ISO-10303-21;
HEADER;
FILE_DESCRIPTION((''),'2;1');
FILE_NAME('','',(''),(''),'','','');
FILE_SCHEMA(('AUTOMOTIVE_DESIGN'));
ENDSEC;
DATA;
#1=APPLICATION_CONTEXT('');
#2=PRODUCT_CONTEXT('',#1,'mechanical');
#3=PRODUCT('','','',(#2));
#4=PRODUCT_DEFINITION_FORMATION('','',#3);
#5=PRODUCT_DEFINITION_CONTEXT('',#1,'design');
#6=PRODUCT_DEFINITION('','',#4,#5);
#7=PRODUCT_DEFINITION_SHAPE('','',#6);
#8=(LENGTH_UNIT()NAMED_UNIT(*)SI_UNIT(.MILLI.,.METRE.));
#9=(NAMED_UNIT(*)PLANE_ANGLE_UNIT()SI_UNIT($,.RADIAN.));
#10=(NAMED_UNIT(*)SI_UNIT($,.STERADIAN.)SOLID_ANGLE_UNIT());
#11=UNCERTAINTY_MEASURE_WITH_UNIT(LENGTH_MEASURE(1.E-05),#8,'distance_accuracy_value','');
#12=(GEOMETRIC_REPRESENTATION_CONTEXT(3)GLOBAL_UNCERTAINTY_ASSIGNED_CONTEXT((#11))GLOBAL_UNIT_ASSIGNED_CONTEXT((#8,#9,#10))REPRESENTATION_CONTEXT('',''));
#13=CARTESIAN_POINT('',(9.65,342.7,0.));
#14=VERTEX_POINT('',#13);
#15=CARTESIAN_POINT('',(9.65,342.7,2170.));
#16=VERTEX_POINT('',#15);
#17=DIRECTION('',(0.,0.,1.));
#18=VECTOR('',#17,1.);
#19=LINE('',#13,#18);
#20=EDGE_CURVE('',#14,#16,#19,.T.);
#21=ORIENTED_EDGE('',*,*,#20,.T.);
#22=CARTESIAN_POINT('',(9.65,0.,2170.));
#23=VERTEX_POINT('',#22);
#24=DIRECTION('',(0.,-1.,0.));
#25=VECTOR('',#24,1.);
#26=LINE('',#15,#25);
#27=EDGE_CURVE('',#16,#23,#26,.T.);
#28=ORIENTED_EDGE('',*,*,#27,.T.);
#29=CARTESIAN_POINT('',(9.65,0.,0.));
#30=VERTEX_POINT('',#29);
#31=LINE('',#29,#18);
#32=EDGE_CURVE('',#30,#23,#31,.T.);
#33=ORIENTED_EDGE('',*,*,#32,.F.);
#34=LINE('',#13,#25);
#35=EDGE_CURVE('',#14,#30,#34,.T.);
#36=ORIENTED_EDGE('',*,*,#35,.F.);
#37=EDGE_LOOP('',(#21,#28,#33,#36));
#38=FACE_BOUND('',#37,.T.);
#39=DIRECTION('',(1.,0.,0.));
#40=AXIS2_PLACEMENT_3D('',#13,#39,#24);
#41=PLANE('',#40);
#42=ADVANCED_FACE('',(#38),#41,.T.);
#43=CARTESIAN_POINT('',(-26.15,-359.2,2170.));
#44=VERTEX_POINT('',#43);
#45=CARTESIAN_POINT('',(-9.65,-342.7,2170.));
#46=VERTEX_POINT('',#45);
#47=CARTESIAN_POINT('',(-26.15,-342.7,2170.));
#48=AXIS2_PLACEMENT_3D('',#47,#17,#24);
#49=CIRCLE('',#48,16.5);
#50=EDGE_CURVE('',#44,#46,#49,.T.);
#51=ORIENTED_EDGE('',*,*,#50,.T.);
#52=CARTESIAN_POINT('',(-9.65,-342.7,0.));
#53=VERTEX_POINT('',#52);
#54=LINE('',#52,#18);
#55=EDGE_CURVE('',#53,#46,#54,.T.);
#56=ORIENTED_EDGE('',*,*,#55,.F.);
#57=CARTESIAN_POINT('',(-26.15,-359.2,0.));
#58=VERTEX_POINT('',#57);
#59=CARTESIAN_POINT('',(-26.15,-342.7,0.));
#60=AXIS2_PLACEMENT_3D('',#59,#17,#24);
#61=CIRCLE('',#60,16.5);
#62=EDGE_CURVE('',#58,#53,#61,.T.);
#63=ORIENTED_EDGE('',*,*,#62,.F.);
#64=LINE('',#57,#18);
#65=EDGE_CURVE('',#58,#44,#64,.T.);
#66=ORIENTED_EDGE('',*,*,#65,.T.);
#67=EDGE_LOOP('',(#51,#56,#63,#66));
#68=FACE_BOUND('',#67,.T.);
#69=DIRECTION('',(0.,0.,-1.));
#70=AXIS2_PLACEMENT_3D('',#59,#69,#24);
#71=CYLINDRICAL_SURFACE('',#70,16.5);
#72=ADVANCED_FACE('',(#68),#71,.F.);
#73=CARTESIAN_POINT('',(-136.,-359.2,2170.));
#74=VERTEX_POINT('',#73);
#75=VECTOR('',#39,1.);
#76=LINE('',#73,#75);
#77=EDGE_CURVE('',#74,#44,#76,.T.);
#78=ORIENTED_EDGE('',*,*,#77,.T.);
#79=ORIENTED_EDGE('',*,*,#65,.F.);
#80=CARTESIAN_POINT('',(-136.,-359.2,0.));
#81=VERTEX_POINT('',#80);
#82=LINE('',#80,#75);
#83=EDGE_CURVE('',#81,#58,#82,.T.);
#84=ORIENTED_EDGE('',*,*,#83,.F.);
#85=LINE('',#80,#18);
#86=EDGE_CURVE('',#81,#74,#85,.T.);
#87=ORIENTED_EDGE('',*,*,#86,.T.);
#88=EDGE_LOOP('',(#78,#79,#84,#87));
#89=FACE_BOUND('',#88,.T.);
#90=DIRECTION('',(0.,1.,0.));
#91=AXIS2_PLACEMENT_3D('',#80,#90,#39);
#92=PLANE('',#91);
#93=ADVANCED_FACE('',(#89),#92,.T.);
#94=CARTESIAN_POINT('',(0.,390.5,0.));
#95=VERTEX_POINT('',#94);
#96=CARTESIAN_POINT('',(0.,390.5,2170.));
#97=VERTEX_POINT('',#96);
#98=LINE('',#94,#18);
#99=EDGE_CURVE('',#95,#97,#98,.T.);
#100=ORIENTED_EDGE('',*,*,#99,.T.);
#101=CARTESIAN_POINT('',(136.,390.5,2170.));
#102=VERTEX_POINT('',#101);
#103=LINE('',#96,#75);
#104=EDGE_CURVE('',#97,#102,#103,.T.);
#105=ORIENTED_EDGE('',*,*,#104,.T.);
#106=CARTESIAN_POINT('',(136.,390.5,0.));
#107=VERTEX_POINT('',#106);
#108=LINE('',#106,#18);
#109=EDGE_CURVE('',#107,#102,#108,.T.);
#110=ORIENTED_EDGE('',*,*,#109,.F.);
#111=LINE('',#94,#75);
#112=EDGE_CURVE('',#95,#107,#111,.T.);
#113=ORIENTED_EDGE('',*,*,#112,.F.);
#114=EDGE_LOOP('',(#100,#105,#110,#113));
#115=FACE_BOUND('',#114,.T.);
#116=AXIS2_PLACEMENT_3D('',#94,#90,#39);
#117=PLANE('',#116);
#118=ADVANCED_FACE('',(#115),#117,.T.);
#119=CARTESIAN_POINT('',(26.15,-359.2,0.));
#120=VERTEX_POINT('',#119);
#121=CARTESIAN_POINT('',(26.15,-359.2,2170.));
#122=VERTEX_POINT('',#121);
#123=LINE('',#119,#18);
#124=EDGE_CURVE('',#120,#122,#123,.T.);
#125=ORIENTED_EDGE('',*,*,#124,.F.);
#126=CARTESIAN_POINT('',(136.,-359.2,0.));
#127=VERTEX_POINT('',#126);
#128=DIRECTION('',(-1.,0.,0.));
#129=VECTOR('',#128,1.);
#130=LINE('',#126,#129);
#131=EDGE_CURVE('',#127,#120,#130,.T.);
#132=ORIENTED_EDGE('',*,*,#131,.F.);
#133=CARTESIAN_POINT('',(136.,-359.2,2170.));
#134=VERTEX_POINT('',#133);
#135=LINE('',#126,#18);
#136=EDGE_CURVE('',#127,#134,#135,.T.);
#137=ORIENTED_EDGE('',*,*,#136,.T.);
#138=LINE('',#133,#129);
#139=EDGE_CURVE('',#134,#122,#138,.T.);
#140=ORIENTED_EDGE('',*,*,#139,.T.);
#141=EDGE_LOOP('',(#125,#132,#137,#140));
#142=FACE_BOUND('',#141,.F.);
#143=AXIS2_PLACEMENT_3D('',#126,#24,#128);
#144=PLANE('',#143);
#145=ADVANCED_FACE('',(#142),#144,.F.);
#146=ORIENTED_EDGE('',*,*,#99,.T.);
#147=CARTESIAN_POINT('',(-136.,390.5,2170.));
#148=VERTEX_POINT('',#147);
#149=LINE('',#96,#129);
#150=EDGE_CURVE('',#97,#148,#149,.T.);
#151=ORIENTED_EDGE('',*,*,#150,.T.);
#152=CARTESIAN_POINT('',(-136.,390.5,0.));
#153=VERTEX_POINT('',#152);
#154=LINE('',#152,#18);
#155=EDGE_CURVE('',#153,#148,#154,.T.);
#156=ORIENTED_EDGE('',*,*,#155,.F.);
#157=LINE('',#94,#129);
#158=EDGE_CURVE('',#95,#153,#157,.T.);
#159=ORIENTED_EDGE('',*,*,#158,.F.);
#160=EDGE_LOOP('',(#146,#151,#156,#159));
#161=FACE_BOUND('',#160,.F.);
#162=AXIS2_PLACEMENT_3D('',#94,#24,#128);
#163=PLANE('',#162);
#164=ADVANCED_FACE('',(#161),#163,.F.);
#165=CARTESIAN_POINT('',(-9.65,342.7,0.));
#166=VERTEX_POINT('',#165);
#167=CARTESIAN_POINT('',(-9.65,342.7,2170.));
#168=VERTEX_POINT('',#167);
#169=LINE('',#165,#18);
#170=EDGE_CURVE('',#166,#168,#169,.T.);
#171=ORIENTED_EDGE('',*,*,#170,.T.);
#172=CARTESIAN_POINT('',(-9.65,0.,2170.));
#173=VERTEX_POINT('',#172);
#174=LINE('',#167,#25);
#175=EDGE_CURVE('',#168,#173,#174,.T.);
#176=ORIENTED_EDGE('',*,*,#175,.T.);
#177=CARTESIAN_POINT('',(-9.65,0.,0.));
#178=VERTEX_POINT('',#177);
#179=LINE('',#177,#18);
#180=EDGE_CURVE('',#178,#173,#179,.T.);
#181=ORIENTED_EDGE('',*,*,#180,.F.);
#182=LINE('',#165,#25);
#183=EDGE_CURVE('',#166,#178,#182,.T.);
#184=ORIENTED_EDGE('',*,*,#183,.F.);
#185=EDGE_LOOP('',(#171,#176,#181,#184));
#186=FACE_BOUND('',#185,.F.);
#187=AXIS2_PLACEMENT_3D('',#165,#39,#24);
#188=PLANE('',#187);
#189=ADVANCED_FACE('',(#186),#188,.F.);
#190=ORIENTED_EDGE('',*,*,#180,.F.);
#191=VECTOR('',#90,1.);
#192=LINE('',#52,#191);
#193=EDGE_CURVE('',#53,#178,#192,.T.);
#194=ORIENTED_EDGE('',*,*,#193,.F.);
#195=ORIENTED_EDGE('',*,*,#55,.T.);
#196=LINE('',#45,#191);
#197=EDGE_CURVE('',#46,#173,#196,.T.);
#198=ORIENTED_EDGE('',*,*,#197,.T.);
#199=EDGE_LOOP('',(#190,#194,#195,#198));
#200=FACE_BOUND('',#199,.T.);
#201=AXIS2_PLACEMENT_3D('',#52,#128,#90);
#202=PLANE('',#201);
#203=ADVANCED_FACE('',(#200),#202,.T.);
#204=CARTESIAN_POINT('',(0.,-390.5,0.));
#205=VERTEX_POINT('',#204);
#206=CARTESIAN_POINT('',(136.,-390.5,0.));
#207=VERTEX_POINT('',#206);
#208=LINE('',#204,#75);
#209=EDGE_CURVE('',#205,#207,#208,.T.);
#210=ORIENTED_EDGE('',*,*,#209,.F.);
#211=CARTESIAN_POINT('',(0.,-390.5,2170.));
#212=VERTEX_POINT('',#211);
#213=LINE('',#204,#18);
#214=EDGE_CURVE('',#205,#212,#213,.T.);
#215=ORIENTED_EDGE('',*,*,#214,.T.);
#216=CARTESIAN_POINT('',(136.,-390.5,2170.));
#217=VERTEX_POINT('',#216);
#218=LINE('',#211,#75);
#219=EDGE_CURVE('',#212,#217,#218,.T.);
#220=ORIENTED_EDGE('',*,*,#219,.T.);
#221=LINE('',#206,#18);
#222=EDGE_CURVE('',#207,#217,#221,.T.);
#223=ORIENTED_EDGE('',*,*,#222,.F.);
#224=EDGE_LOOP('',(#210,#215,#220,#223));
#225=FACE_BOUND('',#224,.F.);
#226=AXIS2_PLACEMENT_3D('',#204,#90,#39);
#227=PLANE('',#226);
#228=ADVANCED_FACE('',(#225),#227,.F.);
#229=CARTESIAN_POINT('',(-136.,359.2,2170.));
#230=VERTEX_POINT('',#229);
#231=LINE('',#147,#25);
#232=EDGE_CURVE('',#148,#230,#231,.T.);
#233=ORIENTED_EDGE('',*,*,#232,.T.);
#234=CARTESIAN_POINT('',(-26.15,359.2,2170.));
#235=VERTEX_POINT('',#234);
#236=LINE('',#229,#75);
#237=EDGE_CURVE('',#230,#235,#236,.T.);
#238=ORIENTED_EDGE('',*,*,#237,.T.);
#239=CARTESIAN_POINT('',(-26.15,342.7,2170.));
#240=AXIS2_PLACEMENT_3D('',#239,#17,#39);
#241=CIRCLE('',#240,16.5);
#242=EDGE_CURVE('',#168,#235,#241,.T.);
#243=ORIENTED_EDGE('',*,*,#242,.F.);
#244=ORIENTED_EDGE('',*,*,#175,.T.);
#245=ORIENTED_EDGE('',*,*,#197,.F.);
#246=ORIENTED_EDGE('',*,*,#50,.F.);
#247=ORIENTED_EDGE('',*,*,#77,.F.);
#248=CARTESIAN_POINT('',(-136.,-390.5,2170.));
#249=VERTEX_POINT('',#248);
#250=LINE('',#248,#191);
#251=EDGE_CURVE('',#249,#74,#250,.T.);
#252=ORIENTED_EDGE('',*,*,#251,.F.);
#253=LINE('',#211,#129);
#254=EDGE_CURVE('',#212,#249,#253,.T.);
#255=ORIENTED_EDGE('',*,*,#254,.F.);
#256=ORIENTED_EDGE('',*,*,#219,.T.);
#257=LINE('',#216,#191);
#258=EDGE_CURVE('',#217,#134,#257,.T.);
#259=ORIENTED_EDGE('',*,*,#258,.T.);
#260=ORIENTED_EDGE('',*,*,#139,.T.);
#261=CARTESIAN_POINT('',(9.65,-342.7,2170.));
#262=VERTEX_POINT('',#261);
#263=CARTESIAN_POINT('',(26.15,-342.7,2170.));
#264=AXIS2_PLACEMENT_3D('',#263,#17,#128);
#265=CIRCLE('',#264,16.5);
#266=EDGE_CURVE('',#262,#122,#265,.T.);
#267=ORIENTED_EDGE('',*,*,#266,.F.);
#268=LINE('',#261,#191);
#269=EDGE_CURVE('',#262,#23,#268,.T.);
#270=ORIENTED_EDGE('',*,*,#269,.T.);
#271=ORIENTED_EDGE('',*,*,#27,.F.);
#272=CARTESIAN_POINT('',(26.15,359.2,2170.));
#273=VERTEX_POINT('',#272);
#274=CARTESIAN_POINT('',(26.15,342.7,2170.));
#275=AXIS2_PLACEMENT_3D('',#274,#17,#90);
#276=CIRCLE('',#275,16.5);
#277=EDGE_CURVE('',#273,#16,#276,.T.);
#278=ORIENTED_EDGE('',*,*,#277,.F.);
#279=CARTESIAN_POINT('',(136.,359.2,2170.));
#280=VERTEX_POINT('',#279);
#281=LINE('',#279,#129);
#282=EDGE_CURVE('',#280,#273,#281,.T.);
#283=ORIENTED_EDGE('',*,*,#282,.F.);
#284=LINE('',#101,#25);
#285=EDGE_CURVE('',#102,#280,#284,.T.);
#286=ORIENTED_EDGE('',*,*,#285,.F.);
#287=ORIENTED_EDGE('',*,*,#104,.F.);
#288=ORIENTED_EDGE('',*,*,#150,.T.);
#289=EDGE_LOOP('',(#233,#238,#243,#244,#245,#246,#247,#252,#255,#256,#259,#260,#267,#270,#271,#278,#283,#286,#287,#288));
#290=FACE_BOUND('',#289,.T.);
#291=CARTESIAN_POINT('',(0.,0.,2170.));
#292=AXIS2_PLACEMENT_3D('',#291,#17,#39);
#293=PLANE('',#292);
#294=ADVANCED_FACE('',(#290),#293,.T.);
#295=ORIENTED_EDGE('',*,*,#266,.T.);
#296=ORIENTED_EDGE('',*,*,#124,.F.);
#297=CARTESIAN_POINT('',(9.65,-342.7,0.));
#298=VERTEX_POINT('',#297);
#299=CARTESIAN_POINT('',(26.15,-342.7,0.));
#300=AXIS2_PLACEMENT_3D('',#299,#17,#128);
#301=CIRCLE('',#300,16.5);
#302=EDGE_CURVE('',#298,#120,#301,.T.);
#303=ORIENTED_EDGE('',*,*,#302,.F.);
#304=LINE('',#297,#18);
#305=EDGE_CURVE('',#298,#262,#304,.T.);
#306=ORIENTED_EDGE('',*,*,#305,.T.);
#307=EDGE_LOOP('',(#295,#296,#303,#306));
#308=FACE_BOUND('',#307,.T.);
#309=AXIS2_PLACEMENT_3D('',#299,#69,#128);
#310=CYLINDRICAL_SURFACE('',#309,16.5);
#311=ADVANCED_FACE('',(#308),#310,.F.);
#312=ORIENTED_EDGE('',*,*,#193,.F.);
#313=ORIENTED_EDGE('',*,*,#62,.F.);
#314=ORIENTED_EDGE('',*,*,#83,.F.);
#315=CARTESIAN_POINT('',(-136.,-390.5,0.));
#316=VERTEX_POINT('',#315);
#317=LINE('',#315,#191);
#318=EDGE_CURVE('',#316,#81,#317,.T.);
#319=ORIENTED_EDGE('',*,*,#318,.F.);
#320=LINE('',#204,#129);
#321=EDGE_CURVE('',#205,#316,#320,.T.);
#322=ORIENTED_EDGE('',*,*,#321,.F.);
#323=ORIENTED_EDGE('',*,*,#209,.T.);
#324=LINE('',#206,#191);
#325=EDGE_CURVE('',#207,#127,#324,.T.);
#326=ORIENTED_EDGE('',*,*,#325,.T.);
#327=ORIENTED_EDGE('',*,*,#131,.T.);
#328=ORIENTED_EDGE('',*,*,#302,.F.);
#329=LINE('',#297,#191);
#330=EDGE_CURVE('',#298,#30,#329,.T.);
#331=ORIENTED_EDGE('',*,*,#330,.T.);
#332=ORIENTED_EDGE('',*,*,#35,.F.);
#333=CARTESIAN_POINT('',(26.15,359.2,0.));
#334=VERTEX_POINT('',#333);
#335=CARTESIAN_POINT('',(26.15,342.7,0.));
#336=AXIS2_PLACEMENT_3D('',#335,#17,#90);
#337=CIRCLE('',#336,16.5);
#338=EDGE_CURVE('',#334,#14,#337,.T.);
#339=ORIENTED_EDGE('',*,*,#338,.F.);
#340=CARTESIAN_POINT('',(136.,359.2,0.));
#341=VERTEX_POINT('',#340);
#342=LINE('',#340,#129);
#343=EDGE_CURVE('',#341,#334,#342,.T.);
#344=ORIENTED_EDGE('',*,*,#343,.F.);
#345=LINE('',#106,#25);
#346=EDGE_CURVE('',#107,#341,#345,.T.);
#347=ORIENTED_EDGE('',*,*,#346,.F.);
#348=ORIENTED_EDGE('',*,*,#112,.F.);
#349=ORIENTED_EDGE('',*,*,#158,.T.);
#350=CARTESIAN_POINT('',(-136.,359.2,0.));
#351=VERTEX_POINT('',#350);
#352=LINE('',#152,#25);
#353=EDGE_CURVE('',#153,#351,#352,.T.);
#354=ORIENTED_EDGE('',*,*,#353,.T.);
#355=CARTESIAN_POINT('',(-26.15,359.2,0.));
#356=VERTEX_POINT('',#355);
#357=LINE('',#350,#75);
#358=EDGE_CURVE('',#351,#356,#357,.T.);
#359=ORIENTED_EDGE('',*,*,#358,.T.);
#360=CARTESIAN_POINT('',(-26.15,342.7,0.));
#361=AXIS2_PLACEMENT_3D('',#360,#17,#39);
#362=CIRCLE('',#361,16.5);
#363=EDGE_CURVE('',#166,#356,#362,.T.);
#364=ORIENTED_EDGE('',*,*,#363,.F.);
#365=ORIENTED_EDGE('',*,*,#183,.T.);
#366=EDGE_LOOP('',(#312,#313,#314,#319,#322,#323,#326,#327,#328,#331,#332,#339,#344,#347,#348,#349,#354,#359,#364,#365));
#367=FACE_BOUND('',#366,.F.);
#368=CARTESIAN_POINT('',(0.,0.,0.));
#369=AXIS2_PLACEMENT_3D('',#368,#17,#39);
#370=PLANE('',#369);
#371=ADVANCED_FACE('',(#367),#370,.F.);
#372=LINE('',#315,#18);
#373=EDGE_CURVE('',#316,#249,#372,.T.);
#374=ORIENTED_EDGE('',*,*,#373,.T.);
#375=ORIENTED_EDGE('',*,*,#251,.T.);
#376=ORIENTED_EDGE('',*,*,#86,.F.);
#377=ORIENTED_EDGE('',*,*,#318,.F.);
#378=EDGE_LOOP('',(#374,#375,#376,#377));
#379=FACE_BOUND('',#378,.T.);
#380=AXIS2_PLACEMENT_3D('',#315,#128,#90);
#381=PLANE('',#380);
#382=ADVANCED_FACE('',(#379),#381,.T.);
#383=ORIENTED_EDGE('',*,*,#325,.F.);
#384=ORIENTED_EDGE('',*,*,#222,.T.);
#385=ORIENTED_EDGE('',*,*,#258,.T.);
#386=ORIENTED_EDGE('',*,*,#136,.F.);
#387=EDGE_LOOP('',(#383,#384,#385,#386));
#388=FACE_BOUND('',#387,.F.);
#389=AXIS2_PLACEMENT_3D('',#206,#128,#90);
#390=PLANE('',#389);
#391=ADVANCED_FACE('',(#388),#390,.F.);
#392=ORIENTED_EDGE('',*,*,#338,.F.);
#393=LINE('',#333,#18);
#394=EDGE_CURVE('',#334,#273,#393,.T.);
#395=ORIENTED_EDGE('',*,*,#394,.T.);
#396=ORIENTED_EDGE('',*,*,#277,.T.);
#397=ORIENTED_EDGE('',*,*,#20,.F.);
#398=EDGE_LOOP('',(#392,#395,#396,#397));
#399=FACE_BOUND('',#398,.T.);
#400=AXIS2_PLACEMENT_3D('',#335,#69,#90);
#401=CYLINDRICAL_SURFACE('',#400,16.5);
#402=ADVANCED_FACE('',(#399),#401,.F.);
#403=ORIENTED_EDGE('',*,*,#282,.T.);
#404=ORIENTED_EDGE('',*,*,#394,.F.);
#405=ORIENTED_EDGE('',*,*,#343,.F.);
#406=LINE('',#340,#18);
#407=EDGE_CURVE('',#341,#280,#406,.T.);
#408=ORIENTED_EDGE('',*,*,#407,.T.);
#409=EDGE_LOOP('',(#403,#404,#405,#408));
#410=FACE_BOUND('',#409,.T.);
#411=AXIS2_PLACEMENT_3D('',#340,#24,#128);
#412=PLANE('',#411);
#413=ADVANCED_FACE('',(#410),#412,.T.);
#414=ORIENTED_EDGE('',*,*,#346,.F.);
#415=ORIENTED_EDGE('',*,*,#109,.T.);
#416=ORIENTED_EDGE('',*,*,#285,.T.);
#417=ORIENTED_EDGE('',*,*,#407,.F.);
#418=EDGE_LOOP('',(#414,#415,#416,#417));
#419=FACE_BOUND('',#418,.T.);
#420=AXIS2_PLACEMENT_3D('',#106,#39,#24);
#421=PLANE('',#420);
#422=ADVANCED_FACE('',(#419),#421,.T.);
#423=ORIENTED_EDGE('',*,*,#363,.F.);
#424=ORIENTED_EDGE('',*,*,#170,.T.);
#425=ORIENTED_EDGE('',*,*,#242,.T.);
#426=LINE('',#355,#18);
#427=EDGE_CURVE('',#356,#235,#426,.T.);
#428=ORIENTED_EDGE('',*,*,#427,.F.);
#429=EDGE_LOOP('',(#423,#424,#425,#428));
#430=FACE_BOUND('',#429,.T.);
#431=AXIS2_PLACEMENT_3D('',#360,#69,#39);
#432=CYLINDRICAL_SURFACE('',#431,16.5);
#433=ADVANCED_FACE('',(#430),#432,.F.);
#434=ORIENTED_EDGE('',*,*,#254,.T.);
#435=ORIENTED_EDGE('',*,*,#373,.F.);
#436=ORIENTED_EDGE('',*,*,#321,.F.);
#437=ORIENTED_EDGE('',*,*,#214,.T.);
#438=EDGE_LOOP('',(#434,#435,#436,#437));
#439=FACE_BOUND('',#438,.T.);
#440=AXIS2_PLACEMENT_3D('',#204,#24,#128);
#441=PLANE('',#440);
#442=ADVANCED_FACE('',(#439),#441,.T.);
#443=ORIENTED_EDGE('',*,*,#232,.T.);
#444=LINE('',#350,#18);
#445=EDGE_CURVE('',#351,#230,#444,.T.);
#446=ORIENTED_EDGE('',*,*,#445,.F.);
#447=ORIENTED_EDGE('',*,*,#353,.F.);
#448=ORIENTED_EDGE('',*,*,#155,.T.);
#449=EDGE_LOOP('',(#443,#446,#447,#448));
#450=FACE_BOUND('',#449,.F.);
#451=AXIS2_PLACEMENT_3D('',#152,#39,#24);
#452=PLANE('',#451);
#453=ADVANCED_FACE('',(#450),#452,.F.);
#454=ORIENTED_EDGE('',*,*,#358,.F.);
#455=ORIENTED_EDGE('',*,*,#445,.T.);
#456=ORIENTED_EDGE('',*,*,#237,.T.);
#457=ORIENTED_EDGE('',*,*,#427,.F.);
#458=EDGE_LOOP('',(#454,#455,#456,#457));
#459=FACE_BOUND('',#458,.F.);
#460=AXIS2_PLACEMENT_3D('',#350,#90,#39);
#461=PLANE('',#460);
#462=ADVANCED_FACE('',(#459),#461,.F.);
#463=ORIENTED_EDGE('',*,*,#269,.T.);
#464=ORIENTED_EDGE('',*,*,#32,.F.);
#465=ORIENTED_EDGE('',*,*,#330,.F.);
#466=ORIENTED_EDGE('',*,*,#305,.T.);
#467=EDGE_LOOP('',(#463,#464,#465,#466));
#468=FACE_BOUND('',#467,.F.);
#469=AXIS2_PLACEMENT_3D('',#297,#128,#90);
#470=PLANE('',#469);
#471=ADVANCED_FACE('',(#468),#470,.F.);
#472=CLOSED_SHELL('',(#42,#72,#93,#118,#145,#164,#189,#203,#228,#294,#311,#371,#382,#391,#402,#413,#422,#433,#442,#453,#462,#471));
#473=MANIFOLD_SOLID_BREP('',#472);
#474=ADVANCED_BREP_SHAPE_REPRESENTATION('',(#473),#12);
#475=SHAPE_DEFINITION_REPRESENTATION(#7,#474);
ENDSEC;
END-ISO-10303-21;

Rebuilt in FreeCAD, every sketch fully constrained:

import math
import FreeCAD as App
import Part
import Sketcher
from FreeCAD import Vector
Q = App.Units.Quantity

doc = App.newDocument("Part")
params = doc.addObject("Spreadsheet::Sheet", "Params")
for row, (alias, value) in enumerate([
    ("sketch1_radius", "16.5 mm"),
    ("sketch1_height", "31.3 mm"),
    ("pad1_length", "2170 mm"),
], start=1):
    params.set(f"A{row}", alias)
    params.set(f"B{row}", "=" + value)
    params.setAlias(f"B{row}", alias)

body = doc.addObject("PartDesign::Body", "Body")

# Sketch on XY plane
sketch1 = body.newObject("Sketcher::SketchObject", "Sketch")
sketch1.AttachmentSupport = (doc.getObject("XY_Plane"), [""])
sketch1.MapMode = "FlatFace"
sketch1.addGeometry(Part.LineSegment(Vector(-136, -359, 0), Vector(-136, -390, 0)), False)
sketch1.addGeometry(Part.LineSegment(Vector(-136, -390, 0), Vector(136, -390, 0)), False)
sketch1.addGeometry(Part.LineSegment(Vector(136, -390, 0), Vector(136, -359, 0)), False)
sketch1.addGeometry(Part.LineSegment(Vector(136, -359, 0), Vector(26, -359, 0)), False)
sketch1.addGeometry(Part.ArcOfCircle(Part.Circle(Vector(26, -343, 0), Vector(0, 0, 1), 16), math.radians(180), math.radians(270)), False)
sketch1.addGeometry(Part.LineSegment(Vector(10, -343, 0), Vector(10, 343, 0)), False)
sketch1.addGeometry(Part.ArcOfCircle(Part.Circle(Vector(26, 343, 0), Vector(0, 0, 1), 16), math.radians(90), math.radians(180)), False)
sketch1.addGeometry(Part.LineSegment(Vector(26, 359, 0), Vector(136, 359, 0)), False)
sketch1.addGeometry(Part.LineSegment(Vector(136, 359, 0), Vector(136, 390, 0)), False)
sketch1.addGeometry(Part.LineSegment(Vector(136, 390, 0), Vector(-136, 390, 0)), False)
sketch1.addGeometry(Part.LineSegment(Vector(-136, 390, 0), Vector(-136, 359, 0)), False)
sketch1.addGeometry(Part.LineSegment(Vector(-136, 359, 0), Vector(-26, 359, 0)), False)
sketch1.addGeometry(Part.ArcOfCircle(Part.Circle(Vector(-26, 343, 0), Vector(0, 0, 1), 16), math.radians(0), math.radians(90)), False)
sketch1.addGeometry(Part.LineSegment(Vector(-10, 343, 0), Vector(-10, -343, 0)), False)
sketch1.addGeometry(Part.ArcOfCircle(Part.Circle(Vector(-26, -343, 0), Vector(0, 0, 1), 16), math.radians(-90), math.radians(0)), False)
sketch1.addGeometry(Part.LineSegment(Vector(-26, -359, 0), Vector(-136, -359, 0)), False)
sketch1.addConstraint(Sketcher.Constraint("Coincident", 0, 2, 1, 1))
sketch1.addConstraint(Sketcher.Constraint("Coincident", 1, 2, 2, 1))
sketch1.addConstraint(Sketcher.Constraint("Coincident", 2, 2, 3, 1))
sketch1.addConstraint(Sketcher.Constraint("Tangent", 3, 2, 4, 2))
sketch1.addConstraint(Sketcher.Constraint("Tangent", 4, 1, 5, 1))
sketch1.addConstraint(Sketcher.Constraint("Tangent", 5, 2, 6, 2))
sketch1.addConstraint(Sketcher.Constraint("Tangent", 6, 1, 7, 1))
sketch1.addConstraint(Sketcher.Constraint("Coincident", 7, 2, 8, 1))
sketch1.addConstraint(Sketcher.Constraint("Coincident", 8, 2, 9, 1))
sketch1.addConstraint(Sketcher.Constraint("Coincident", 9, 2, 10, 1))
sketch1.addConstraint(Sketcher.Constraint("Coincident", 10, 2, 11, 1))
sketch1.addConstraint(Sketcher.Constraint("Tangent", 11, 2, 12, 2))
sketch1.addConstraint(Sketcher.Constraint("Tangent", 12, 1, 13, 1))
sketch1.addConstraint(Sketcher.Constraint("Tangent", 13, 2, 14, 2))
sketch1.addConstraint(Sketcher.Constraint("Tangent", 14, 1, 15, 1))
sketch1.addConstraint(Sketcher.Constraint("Coincident", 15, 2, 0, 1))
sketch1.addConstraint(Sketcher.Constraint("Vertical", 0))
sketch1.addConstraint(Sketcher.Constraint("Horizontal", 1))
sketch1.addConstraint(Sketcher.Constraint("Vertical", 2))
sketch1.addConstraint(Sketcher.Constraint("Horizontal", 3))
sketch1.addConstraint(Sketcher.Constraint("Vertical", 5))
sketch1.addConstraint(Sketcher.Constraint("Horizontal", 7))
sketch1.addConstraint(Sketcher.Constraint("Vertical", 8))
sketch1.addConstraint(Sketcher.Constraint("Horizontal", 9))
sketch1.addConstraint(Sketcher.Constraint("Vertical", 10))
sketch1.addConstraint(Sketcher.Constraint("Horizontal", 11))
sketch1.addConstraint(Sketcher.Constraint("Vertical", 13))
sketch1.addConstraint(Sketcher.Constraint("Horizontal", 15))
sketch1.addConstraint(Sketcher.Constraint("Equal", 4, 6))
sketch1.addConstraint(Sketcher.Constraint("Equal", 6, 12))
sketch1.addConstraint(Sketcher.Constraint("Equal", 12, 14))
sketch1.addConstraint(Sketcher.Constraint("Symmetric", 4, 3, 12, 3, -1, 1))
sketch1.addConstraint(Sketcher.Constraint("Symmetric", 0, 2, 8, 2, -1, 1))
sketch1.addConstraint(Sketcher.Constraint("Symmetric", 7, 2, 10, 2, -2))
sketch1.addConstraint(Sketcher.Constraint("Symmetric", 2, 2, 15, 2, -2))
sketch1.addConstraint(Sketcher.Constraint("Radius", 4, Q("16.5 mm")))
sketch1.addConstraint(Sketcher.Constraint("DistanceY", 0, 2, 0, 1, Q("31.3 mm")))
sketch1.addConstraint(Sketcher.Constraint("DistanceX", 0, 2, -1, 1, Q("136 mm")))
sketch1.addConstraint(Sketcher.Constraint("DistanceY", 0, 2, -1, 1, Q("390.5 mm")))
sketch1.addConstraint(Sketcher.Constraint("DistanceX", -1, 1, 4, 1, Q("9.65 mm")))
sketch1.setExpression("Constraints[35]", "Params.sketch1_radius")
sketch1.setExpression("Constraints[36]", "Params.sketch1_height")
pad1 = body.newObject("PartDesign::Pad", "Pad")
pad1.Profile = sketch1
pad1.setExpression("Length", "Params.pad1_length")

doc.recompute()
